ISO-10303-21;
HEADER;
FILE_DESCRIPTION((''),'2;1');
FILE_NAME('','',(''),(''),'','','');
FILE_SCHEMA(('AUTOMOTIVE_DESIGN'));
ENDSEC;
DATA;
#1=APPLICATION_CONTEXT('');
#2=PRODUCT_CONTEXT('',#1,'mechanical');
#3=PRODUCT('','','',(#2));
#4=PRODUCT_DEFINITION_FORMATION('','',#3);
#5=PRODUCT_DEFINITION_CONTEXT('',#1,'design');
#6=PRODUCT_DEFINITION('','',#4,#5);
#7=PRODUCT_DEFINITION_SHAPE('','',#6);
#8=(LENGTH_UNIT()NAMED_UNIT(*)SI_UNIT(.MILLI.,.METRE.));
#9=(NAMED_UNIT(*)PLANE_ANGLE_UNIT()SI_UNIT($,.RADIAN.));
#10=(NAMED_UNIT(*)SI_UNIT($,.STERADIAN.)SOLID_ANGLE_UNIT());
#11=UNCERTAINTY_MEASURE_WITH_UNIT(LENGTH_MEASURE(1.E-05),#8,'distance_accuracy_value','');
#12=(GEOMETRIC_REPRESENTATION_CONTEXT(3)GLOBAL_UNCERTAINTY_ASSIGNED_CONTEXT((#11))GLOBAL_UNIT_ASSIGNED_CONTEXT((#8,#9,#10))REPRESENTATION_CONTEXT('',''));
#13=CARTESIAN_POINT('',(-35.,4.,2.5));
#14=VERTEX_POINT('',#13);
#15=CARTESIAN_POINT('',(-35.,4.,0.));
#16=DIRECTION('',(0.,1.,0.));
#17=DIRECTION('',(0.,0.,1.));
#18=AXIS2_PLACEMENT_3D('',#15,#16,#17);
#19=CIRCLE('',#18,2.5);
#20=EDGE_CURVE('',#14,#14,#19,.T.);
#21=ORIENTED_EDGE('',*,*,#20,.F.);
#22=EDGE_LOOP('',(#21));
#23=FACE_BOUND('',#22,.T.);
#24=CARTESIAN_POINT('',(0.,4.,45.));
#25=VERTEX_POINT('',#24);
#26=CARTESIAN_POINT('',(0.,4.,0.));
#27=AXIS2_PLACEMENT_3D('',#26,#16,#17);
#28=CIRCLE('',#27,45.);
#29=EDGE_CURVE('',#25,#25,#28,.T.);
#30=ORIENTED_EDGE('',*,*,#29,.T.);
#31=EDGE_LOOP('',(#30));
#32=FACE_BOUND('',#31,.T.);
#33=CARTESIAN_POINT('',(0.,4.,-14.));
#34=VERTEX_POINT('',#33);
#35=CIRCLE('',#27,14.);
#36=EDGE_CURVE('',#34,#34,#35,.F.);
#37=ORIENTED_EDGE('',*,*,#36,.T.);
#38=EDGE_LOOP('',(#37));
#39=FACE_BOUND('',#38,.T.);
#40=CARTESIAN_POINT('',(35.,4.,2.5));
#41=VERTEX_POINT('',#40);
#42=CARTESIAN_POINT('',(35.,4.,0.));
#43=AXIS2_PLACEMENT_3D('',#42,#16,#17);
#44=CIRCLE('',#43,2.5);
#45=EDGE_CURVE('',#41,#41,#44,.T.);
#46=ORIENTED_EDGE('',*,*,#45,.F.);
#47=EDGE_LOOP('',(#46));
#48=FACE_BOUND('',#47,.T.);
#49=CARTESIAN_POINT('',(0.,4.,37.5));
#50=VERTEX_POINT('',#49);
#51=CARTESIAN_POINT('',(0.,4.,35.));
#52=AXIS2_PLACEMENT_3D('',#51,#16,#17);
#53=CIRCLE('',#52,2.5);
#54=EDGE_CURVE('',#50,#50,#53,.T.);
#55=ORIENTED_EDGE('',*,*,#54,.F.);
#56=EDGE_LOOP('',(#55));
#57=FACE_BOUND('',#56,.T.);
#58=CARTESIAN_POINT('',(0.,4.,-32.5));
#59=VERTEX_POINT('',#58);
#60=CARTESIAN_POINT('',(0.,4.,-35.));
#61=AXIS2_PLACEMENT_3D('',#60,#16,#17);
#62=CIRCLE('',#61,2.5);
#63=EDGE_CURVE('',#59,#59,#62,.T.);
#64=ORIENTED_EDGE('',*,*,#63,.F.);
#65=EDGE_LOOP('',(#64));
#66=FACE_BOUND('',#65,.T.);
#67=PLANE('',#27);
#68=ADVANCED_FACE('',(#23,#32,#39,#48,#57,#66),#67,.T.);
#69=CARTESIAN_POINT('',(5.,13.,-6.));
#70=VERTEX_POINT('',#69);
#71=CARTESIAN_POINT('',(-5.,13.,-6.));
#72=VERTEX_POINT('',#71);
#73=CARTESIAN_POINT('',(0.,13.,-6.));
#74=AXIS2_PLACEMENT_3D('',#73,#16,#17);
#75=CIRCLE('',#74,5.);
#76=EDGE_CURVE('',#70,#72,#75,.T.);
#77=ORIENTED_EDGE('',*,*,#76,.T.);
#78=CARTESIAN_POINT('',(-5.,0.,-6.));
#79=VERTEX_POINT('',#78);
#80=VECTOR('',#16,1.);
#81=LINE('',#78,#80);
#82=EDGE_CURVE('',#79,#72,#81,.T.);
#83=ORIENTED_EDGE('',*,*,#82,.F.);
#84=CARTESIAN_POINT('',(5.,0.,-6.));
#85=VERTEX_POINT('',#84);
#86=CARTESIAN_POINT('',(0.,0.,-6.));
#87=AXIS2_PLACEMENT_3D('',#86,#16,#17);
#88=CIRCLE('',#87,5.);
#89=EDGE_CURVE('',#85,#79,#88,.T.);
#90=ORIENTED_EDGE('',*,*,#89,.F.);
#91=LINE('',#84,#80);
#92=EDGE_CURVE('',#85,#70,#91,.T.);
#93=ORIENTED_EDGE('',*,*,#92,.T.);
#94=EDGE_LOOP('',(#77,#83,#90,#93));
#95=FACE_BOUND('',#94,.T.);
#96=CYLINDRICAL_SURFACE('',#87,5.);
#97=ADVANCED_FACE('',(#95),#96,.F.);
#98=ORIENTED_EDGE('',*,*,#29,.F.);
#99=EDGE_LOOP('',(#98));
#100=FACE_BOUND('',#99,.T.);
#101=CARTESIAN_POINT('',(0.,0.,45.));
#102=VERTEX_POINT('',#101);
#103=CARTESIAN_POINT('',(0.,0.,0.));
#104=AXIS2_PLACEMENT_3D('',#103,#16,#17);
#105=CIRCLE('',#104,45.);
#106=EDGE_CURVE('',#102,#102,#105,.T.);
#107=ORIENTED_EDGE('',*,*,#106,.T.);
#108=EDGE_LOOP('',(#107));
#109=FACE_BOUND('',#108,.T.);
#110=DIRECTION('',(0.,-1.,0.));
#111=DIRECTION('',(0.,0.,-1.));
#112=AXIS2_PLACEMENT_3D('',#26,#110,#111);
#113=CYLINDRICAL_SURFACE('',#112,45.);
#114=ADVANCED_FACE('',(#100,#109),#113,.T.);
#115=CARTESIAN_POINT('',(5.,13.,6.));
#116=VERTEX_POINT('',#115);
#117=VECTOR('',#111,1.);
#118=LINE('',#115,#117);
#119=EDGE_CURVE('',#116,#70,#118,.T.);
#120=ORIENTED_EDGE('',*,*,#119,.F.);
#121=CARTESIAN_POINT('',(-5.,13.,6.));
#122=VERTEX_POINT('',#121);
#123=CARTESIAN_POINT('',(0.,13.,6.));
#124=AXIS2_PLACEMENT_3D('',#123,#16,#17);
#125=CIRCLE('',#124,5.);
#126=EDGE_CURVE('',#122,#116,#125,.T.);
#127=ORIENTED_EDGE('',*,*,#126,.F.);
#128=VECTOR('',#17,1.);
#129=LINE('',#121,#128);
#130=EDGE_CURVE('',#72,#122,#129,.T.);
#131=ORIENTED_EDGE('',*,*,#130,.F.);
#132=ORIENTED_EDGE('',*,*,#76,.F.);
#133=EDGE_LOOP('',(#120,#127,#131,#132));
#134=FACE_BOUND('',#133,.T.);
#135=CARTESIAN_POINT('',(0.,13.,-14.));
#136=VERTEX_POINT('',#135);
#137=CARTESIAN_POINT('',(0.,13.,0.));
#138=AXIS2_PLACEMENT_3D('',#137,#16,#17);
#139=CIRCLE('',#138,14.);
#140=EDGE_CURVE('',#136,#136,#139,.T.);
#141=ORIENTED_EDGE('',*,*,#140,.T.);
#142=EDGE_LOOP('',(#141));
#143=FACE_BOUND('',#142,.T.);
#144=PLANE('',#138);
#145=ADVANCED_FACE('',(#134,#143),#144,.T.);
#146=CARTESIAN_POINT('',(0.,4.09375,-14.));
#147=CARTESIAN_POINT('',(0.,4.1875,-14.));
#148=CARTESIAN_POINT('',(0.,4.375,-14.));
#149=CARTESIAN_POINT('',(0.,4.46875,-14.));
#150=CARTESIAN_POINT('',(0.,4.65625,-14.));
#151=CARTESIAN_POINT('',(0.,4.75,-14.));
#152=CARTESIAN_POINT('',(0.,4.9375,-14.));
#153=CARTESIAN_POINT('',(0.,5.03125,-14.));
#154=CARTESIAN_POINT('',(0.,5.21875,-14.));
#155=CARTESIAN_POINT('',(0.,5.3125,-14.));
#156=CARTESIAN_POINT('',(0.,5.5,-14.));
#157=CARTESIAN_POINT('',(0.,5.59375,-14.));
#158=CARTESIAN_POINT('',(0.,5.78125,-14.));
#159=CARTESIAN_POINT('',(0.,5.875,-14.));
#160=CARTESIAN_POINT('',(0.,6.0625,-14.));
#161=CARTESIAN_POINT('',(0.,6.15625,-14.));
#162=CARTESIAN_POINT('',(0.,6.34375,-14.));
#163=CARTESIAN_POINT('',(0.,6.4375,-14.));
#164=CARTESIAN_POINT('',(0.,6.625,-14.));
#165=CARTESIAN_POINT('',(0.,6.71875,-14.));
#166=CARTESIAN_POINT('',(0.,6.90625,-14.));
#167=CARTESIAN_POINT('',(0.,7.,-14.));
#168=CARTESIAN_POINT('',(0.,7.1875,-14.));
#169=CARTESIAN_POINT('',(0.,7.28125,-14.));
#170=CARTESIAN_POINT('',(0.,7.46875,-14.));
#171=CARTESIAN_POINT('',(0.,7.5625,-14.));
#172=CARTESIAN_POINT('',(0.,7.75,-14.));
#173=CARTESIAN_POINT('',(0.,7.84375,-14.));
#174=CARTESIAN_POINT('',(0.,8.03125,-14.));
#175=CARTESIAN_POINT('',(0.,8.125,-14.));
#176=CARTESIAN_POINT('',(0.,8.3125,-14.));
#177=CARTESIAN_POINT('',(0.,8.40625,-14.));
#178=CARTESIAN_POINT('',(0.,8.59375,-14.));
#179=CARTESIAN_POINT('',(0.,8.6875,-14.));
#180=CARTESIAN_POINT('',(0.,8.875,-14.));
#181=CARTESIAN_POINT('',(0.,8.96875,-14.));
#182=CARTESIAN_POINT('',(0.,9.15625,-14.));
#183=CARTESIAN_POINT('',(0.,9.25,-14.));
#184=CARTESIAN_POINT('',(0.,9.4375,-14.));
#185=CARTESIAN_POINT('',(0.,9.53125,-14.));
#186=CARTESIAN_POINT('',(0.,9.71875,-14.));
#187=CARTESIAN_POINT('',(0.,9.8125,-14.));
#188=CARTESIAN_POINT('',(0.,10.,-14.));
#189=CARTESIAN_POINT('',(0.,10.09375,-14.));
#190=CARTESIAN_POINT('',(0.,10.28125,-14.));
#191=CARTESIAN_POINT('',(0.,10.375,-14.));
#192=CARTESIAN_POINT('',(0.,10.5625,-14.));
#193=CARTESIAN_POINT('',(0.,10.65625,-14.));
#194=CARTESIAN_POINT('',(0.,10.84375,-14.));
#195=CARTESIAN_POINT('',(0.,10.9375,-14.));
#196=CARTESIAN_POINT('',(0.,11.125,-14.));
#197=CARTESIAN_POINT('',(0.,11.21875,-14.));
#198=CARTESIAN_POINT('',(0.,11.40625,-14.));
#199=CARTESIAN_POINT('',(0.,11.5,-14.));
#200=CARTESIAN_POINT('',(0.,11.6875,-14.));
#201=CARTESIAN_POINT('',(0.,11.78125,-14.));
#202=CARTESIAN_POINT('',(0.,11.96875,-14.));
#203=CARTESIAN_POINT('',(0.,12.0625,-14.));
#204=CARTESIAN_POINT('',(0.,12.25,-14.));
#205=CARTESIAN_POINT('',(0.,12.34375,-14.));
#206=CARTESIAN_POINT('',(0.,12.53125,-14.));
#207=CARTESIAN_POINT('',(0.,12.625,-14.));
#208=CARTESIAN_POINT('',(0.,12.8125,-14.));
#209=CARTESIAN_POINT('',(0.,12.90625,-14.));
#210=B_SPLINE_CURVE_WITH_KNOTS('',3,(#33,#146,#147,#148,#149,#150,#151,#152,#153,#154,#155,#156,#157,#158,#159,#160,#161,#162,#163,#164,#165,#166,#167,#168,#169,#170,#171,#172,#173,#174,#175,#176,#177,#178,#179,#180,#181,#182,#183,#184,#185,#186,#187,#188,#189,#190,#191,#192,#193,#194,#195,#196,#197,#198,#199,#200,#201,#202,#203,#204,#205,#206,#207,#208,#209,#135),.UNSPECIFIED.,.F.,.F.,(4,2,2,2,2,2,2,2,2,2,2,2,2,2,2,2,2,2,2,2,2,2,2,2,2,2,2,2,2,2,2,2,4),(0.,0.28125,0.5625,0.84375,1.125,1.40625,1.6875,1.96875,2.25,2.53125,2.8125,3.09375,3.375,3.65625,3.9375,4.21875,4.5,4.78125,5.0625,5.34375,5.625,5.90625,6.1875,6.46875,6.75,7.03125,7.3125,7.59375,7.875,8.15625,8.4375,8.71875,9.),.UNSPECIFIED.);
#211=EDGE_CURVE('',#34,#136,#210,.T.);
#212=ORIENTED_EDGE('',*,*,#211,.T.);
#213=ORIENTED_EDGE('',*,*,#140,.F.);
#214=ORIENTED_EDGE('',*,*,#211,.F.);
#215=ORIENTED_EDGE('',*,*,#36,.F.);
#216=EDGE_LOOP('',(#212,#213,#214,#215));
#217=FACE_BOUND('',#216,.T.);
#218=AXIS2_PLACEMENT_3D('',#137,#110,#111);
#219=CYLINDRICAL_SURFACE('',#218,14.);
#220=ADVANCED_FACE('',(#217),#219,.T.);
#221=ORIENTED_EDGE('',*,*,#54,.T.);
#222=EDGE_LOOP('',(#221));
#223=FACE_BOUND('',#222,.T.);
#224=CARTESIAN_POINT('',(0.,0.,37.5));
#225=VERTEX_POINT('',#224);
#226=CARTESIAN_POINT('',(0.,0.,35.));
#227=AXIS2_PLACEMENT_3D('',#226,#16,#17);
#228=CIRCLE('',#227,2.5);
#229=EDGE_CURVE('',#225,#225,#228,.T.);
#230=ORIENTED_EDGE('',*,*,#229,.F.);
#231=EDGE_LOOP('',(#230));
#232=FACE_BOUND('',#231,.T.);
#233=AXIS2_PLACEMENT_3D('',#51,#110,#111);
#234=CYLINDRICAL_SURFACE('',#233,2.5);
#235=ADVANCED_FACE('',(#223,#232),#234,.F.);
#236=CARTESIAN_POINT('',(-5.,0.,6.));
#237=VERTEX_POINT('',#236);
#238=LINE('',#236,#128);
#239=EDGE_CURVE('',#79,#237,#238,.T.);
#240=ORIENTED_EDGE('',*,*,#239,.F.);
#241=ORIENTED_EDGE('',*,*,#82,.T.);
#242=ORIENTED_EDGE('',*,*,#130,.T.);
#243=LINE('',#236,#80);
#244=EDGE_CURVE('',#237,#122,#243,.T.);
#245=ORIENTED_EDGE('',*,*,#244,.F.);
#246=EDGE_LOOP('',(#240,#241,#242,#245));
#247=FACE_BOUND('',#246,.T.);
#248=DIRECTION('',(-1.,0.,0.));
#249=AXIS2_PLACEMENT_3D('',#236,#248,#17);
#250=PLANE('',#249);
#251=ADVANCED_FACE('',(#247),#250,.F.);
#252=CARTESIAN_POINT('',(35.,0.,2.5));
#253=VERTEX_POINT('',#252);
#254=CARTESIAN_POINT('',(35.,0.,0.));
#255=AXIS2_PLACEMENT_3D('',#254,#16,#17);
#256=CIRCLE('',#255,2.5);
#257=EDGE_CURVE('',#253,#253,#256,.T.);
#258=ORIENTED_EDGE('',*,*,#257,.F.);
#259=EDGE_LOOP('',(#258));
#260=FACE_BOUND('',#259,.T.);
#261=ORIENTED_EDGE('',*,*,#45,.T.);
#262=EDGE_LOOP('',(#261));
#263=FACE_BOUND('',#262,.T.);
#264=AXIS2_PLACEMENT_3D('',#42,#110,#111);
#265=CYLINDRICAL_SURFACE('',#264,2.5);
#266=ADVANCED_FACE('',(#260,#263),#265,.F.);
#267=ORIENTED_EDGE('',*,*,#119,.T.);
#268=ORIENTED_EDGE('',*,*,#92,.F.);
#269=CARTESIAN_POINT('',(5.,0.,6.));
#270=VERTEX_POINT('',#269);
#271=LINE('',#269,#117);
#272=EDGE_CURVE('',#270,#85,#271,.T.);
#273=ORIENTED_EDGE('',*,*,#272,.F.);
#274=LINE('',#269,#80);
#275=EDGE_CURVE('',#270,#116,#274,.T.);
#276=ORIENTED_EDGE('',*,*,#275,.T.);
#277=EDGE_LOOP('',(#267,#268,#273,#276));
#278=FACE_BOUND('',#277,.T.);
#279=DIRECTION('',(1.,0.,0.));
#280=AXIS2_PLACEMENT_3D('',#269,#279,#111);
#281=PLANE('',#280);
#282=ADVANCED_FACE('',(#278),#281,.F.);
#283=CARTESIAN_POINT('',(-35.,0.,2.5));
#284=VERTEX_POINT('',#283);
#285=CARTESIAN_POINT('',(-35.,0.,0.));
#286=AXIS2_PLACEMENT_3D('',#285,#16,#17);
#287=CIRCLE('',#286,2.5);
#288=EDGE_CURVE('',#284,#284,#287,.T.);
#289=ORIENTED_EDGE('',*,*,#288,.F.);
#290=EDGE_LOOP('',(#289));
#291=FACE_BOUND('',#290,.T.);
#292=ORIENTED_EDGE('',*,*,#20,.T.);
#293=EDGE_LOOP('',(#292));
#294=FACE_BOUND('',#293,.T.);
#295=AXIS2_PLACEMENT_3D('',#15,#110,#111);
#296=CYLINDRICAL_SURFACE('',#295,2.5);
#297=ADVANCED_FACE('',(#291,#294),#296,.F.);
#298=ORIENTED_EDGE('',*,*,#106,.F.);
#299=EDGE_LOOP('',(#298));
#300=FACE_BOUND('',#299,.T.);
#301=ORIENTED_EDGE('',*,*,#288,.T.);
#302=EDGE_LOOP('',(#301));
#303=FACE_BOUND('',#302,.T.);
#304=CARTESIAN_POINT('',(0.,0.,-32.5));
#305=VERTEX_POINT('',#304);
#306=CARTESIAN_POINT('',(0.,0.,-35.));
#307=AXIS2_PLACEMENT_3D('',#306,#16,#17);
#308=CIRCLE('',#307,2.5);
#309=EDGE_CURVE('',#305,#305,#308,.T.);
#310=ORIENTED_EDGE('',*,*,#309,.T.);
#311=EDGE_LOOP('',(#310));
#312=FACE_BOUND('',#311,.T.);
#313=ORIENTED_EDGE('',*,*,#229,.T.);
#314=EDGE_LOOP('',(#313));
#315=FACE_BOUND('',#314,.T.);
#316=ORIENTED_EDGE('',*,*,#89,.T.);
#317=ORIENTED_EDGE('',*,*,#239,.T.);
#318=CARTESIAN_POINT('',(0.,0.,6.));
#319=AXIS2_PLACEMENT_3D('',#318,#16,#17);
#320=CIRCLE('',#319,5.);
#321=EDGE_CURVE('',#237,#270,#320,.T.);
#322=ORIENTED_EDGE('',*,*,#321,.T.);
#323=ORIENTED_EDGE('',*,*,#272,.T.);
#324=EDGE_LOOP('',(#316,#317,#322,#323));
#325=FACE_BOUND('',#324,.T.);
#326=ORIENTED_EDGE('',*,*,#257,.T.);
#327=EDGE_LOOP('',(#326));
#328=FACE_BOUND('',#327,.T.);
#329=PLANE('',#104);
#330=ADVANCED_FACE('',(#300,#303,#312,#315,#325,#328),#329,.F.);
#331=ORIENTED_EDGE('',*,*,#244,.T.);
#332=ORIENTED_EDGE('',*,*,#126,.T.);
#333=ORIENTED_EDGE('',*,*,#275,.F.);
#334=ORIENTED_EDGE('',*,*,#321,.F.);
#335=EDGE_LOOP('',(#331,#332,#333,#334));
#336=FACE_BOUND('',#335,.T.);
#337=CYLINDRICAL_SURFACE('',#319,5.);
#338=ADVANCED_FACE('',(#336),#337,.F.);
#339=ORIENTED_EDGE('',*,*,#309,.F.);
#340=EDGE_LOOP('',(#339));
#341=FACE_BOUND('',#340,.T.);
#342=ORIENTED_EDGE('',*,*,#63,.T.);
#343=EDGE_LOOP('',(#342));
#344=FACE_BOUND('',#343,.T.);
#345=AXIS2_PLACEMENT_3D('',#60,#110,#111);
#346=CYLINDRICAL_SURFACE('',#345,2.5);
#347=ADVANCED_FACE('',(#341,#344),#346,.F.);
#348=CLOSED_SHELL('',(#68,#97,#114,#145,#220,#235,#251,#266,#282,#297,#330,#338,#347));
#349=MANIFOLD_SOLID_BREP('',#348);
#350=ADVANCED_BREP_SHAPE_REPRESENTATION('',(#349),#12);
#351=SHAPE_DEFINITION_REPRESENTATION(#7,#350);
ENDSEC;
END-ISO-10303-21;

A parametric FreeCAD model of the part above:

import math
import FreeCAD as App
import Part
import Sketcher
Q = App.Units.Quantity

doc = App.newDocument("Part")
params = doc.addObject("Spreadsheet::Sheet", "Params")
for row, (alias, value) in enumerate([
    ("sketch1_diameter", "90 mm"),
    ("sketch1_diameter2", "5 mm"),
    ("pad1_length", "4 mm"),
    ("sketch2_diameter", "28 mm"),
    ("pad2_length", "13 mm"),
    ("sketch3_radius", "5 mm"),
    ("sketch3_height", "12 mm"),
], start=1):
    params.set(f"A{row}", alias)
    params.set(f"B{row}", "=" + value)
    params.setAlias(f"B{row}", alias)

body = doc.addObject("PartDesign::Body", "Body")

# Sketch on XZ plane
sketch1 = doc.addObject("Sketcher::SketchObject", "Sketch")
body.addObject(sketch1)
sketch1.AttachmentSupport = (doc.XZ_Plane, [""])
sketch1.MapMode = "FlatFace"
sketch1.addGeometry([
    Part.Circle(App.Vector(0, 0, 0), App.Vector(0, 0, 1), 45),  # 0
    Part.Circle(App.Vector(0, -35, 0), App.Vector(0, 0, 1), 2.5),  # 1
    Part.Circle(App.Vector(-35, 0, 0), App.Vector(0, 0, 1), 2.5),  # 2
    Part.Circle(App.Vector(35, 0, 0), App.Vector(0, 0, 1), 2.5),  # 3
    Part.Circle(App.Vector(0, 35, 0), App.Vector(0, 0, 1), 2.5),  # 4
], False)
sketch1.addConstraint([
    Sketcher.Constraint("Coincident", 0, 3, -1, 1),
    Sketcher.Constraint("Equal", 1, 2),
    Sketcher.Constraint("Equal", 2, 3),
    Sketcher.Constraint("Equal", 3, 4),
    Sketcher.Constraint("Symmetric", 2, 3, 3, 3, -1, 1),
    Sketcher.Constraint("Symmetric", 1, 3, 4, 3, -1, 1),
    Sketcher.Constraint("PointOnObject", 1, 3, -2),
    Sketcher.Constraint("PointOnObject", 2, 3, -1),
    Sketcher.Constraint("Diameter", 0, Q("90 mm")),
    Sketcher.Constraint("Diameter", 1, Q("5 mm")),
    Sketcher.Constraint("DistanceY", 1, 3, -1, 1, Q("35 mm")),
    Sketcher.Constraint("DistanceX", 2, 3, -1, 1, Q("35 mm")),
])
sketch1.setExpression("Constraints[8]", "Params.sketch1_diameter")
sketch1.setExpression("Constraints[9]", "Params.sketch1_diameter2")
pad1 = doc.addObject("PartDesign::Pad", "Pad")
body.addObject(pad1)
pad1.Profile = sketch1
pad1.setExpression("Length", "Params.pad1_length")
pad1.Reversed = True

# Sketch on XZ plane
sketch2 = doc.addObject("Sketcher::SketchObject", "Sketch001")
body.addObject(sketch2)
sketch2.AttachmentSupport = (doc.XZ_Plane, [""])
sketch2.MapMode = "FlatFace"
sketch2.addGeometry(Part.Circle(App.Vector(0, 0, 0), App.Vector(0, 0, 1), 14), False)
sketch2.addConstraint([
    Sketcher.Constraint("Coincident", 0, 3, -1, 1),
    Sketcher.Constraint("Diameter", 0, Q("28 mm")),
])
sketch2.setExpression("Constraints[1]", "Params.sketch2_diameter")
pad2 = doc.addObject("PartDesign::Pad", "Pad001")
body.addObject(pad2)
pad2.Profile = sketch2
pad2.setExpression("Length", "Params.pad2_length")
pad2.Reversed = True

# Sketch on XZ plane
sketch3 = doc.addObject("Sketcher::SketchObject", "Sketch002")
body.addObject(sketch3)
sketch3.AttachmentSupport = (doc.XZ_Plane, [""])
sketch3.MapMode = "FlatFace"
sketch3.AttachmentOffset = App.Placement(App.Vector(0, 0, -13), App.Rotation())
sketch3.addGeometry([
    Part.LineSegment(App.Vector(-5, -6, 0), App.Vector(-5, 6, 0)),
    Part.ArcOfCircle(Part.Circle(App.Vector(0, 6, 0), App.Vector(0, 0, 1), 5), math.radians(0), math.radians(180)),
    Part.LineSegment(App.Vector(5, 6, 0), App.Vector(5, -6, 0)),
    Part.ArcOfCircle(Part.Circle(App.Vector(0, -6, 0), App.Vector(0, 0, 1), 5), math.radians(180), math.radians(360)),
], False)
sketch3.addConstraint([
    Sketcher.Constraint("Tangent", 0, 2, 1, 2),
    Sketcher.Constraint("Tangent", 1, 1, 2, 1),
    Sketcher.Constraint("Tangent", 2, 2, 3, 2),
    Sketcher.Constraint("Tangent", 3, 1, 0, 1),
    Sketcher.Constraint("Vertical", 0),
    Sketcher.Constraint("Vertical", 2),
    Sketcher.Constraint("Symmetric", 1, 3, 3, 3, -1, 1),
    Sketcher.Constraint("Radius", 1, Q("5 mm")),
    Sketcher.Constraint("DistanceY", 0, 1, 0, 2, Q("12 mm")),
])
sketch3.setExpression("Constraints[7]", "Params.sketch3_radius")
sketch3.setExpression("Constraints[8]", "Params.sketch3_height")
pocket1 = doc.addObject("PartDesign::Pocket", "Pocket")
body.addObject(pocket1)
pocket1.Profile = sketch3
pocket1.Type = "ThroughAll"
pocket1.Reversed = True

doc.recompute()
